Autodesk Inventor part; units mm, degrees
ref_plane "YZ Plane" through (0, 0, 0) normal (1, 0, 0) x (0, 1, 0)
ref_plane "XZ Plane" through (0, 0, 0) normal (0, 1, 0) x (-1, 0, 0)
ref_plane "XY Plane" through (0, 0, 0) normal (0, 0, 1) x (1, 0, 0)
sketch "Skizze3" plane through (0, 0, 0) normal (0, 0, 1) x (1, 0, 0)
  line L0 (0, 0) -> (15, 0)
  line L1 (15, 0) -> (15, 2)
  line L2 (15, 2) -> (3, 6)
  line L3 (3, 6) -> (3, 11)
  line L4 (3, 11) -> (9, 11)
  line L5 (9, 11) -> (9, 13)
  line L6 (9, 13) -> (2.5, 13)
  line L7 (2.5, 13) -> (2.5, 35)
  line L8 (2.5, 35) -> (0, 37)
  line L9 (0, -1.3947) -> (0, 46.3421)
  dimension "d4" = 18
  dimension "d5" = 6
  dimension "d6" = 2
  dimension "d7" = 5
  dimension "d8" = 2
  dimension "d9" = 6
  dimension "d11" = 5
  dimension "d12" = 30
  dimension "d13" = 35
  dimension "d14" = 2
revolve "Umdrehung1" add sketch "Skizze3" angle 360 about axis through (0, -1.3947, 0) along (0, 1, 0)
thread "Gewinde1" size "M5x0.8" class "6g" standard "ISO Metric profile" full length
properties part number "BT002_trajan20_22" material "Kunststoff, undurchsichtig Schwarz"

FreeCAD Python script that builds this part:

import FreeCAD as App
import Part
import Sketcher

V = App.Vector
Q = App.Units.Quantity


def add_polygon(sketch, points):
    """Adds a closed chain of lines whose ends are joined by coincident constraints."""
    first, n = sketch.GeometryCount, len(points)
    for a, b in zip(points, points[1:] + points[:1]):
        sketch.addGeometry(Part.LineSegment(App.Vector(*a, 0), App.Vector(*b, 0)), False)
    for i in range(n):
        sketch.addConstraint(Sketcher.Constraint("Coincident", first + i, 2, first + (i + 1) % n, 1))

doc = App.newDocument("Part")
body = doc.addObject("PartDesign::Body", "Body")

sketch1 = body.newObject("Sketcher::SketchObject", "Sketch")
sketch1.AttachmentSupport = (doc.getObject("XY_Plane"), [""])
sketch1.MapMode = "FlatFace"
add_polygon(sketch1, [(0, 37), (0, 0), (15, 0), (15, 2), (3, 6), (3, 11), (9, 11), (9, 13), (2.5, 13), (2.5, 35)])
sketch1.addConstraint(Sketcher.Constraint("Vertical", 0))
sketch1.addConstraint(Sketcher.Constraint("Horizontal", 1))
sketch1.addConstraint(Sketcher.Constraint("Vertical", 2))
sketch1.addConstraint(Sketcher.Constraint("Vertical", 4))
sketch1.addConstraint(Sketcher.Constraint("Horizontal", 5))
sketch1.addConstraint(Sketcher.Constraint("Vertical", 6))
sketch1.addConstraint(Sketcher.Constraint("Horizontal", 7))
sketch1.addConstraint(Sketcher.Constraint("Vertical", 8))
sketch1.addConstraint(Sketcher.Constraint("Coincident", 0, 2, -1, 1))
sketch1.addConstraint(Sketcher.Constraint("Equal", 2, 6))
sketch1.addConstraint(Sketcher.Constraint("DistanceX", 5, 1, 5, 2, Q("6 mm")))
sketch1.addConstraint(Sketcher.Constraint("DistanceY", 2, 1, 2, 2, Q("2 mm")))
sketch1.addConstraint(Sketcher.Constraint("DistanceY", 4, 1, 4, 2, Q("5 mm")))
sketch1.addConstraint(Sketcher.Constraint("DistanceY", -1, 1, 3, 2, Q("6 mm")))
sketch1.addConstraint(Sketcher.Constraint("DistanceY", -1, 1, 8, 2, Q("35 mm")))
sketch1.addConstraint(Sketcher.Constraint("DistanceX", 5, 2, 2, 2, Q("6 mm")))
sketch1.addConstraint(Sketcher.Constraint("DistanceY", 8, 2, 9, 2, Q("2 mm")))
sketch1.addConstraint(Sketcher.Constraint("DistanceX", 1, 1, 1, 2, Q("15 mm")))
sketch1.addConstraint(Sketcher.Constraint("DistanceX", 7, 2, 7, 1, Q("6.5 mm")))
revolution = body.newObject("PartDesign::Revolution", "Revolution")
revolution.Profile = sketch1
revolution.ReferenceAxis = (sketch1, ["V_Axis"])
revolution.Angle = 360

doc.recompute()
